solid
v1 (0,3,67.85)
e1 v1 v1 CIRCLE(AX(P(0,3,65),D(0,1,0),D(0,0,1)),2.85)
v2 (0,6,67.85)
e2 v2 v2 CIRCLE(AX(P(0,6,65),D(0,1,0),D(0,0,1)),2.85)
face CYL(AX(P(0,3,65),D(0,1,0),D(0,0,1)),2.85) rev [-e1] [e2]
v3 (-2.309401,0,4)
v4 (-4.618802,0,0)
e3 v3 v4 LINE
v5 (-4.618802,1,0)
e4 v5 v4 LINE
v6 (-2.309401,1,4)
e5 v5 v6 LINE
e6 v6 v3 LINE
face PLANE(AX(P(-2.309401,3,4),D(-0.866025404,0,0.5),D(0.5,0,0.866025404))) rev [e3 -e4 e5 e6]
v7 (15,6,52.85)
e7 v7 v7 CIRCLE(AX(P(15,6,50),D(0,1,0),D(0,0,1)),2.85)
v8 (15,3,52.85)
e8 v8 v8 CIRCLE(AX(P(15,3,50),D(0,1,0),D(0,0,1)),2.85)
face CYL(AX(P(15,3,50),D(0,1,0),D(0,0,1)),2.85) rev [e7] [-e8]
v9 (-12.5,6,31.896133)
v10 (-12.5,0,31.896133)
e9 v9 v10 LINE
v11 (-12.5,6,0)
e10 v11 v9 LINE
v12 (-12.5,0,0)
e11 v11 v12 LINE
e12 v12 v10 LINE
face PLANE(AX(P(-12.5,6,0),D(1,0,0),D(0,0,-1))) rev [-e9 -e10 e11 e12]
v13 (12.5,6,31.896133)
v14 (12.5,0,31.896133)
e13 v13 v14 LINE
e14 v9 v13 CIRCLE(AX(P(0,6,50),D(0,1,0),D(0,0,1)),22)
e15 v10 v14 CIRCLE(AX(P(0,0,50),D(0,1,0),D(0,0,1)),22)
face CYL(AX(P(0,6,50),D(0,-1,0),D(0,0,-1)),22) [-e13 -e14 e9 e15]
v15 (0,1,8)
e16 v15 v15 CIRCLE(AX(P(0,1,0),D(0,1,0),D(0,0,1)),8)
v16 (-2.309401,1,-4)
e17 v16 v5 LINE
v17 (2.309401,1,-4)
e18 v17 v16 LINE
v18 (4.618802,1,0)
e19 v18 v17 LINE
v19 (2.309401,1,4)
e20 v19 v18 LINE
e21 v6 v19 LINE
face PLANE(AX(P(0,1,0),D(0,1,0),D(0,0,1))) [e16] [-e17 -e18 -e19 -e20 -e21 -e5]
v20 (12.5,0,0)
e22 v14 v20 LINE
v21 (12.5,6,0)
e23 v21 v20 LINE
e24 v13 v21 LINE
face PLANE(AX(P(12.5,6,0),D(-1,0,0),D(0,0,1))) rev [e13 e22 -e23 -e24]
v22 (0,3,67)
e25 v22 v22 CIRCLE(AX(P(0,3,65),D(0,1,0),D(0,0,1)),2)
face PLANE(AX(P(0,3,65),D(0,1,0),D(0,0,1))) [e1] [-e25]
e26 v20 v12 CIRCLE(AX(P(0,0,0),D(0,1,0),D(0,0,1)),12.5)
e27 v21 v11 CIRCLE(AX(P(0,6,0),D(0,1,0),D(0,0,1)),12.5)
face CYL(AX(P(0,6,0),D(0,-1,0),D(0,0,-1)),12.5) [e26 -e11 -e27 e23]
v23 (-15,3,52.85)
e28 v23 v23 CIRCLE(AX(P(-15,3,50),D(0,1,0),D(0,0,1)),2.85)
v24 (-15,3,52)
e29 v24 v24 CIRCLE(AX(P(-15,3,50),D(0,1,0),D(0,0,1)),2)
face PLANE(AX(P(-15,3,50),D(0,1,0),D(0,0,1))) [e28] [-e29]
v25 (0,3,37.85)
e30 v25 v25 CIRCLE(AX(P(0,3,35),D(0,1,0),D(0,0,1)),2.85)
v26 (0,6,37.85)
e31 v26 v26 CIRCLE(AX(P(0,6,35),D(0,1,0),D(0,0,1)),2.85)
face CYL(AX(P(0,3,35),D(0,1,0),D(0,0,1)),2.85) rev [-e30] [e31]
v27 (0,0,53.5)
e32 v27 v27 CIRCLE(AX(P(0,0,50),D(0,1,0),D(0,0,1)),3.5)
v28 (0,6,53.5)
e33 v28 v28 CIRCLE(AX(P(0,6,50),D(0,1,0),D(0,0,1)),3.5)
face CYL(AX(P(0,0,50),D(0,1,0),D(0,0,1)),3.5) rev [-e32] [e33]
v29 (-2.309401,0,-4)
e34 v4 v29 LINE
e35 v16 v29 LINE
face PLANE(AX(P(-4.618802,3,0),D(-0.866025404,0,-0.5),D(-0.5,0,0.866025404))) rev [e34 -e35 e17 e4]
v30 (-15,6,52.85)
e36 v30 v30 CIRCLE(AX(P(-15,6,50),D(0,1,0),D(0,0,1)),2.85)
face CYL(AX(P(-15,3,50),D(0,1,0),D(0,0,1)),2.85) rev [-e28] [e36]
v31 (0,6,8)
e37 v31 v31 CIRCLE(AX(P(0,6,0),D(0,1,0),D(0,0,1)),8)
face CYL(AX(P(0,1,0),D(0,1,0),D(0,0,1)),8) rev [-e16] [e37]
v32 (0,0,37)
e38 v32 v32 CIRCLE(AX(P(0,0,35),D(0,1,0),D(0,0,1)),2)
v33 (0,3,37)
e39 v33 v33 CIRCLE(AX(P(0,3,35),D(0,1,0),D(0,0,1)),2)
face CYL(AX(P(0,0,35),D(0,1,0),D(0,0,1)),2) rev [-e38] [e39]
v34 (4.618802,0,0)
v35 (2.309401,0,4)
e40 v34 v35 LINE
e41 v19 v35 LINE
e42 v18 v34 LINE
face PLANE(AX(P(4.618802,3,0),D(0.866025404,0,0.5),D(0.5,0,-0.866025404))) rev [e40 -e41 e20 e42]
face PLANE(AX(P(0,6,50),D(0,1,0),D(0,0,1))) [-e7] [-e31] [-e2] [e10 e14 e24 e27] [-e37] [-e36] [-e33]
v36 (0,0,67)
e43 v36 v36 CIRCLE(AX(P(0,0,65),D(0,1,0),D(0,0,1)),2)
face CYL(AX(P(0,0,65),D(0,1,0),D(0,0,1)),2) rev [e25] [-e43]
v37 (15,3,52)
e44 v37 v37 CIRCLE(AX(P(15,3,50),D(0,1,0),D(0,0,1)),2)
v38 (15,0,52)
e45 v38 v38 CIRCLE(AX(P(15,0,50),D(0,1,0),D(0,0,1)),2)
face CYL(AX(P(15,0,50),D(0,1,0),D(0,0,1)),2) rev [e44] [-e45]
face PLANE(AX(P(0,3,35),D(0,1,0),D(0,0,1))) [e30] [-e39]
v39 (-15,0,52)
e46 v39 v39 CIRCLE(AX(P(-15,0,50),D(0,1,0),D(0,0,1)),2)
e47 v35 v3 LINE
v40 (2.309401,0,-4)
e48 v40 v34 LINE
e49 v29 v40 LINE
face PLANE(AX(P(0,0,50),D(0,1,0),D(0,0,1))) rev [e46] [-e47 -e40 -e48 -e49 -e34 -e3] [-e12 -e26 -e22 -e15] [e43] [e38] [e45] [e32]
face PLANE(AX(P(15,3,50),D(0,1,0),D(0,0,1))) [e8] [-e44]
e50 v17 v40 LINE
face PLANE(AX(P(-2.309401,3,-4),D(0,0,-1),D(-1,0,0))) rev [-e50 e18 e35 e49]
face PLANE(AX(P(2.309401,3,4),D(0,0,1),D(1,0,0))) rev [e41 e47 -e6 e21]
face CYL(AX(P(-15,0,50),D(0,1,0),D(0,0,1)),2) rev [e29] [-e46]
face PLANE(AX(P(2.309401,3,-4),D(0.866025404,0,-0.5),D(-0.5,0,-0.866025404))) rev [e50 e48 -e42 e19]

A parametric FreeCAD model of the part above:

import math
import FreeCAD as App
import Part
import Sketcher
Q = App.Units.Quantity


def add_polygon(sketch, points):
    """Adds a closed chain of lines whose ends are joined by coincident constraints."""
    first, n = sketch.GeometryCount, len(points)
    for a, b in zip(points, points[1:] + points[:1]):
        sketch.addGeometry(Part.LineSegment(App.Vector(*a, 0), App.Vector(*b, 0)), False)
    for i in range(n):
        sketch.addConstraint(Sketcher.Constraint("Coincident", first + i, 2, first + (i + 1) % n, 1))

doc = App.newDocument("Part")
body = doc.addObject("PartDesign::Body", "Body")

# Sketch on XZ plane
sketch1 = body.newObject("Sketcher::SketchObject", "Sketch")
sketch1.AttachmentSupport = (doc.getObject("XZ_Plane"), [""])
sketch1.MapMode = "FlatFace"
sketch1.addGeometry(Part.LineSegment(App.Vector(-12, 0, 0), App.Vector(-12, 32, 0)), False)
sketch1.addGeometry(Part.ArcOfCircle(Part.Circle(App.Vector(0, 50, 0), App.Vector(0, 0, 1), 22), math.radians(-55), math.radians(235)), False)
sketch1.addGeometry(Part.LineSegment(App.Vector(12, 32, 0), App.Vector(12, 0, 0)), False)
sketch1.addGeometry(Part.ArcOfCircle(Part.Circle(App.Vector(0, 0, 0), App.Vector(0, 0, 1), 12), math.radians(180), math.radians(360)), False)
sketch1.addConstraint(Sketcher.Constraint("Coincident", 0, 2, 1, 2))
sketch1.addConstraint(Sketcher.Constraint("Coincident", 1, 1, 2, 1))
sketch1.addConstraint(Sketcher.Constraint("Tangent", 2, 2, 3, 2))
sketch1.addConstraint(Sketcher.Constraint("Tangent", 3, 1, 0, 1))
sketch1.addConstraint(Sketcher.Constraint("Vertical", 0))
sketch1.addConstraint(Sketcher.Constraint("Vertical", 2))
sketch1.addConstraint(Sketcher.Constraint("Coincident", 3, 3, -1, 1))
sketch1.addConstraint(Sketcher.Constraint("PointOnObject", 1, 3, -2))
sketch1.addConstraint(Sketcher.Constraint("Radius", 1, 22.0))
sketch1.addConstraint(Sketcher.Constraint("Radius", 3, 12.5))
sketch1.addConstraint(Sketcher.Constraint("DistanceY", -1, 1, 1, 3, 50.0))
pad1 = body.newObject("PartDesign::Pad", "Pad")
pad1.Profile = sketch1
pad1.Length = 6
pad1.Reversed = True

# Sketch on XZ plane
sketch2 = body.newObject("Sketcher::SketchObject", "Sketch001")
sketch2.AttachmentSupport = (doc.getObject("XZ_Plane"), [""])
sketch2.MapMode = "FlatFace"
sketch2.AttachmentOffset = App.Placement(App.Vector(0, 0, -6), App.Rotation())
sketch2.addGeometry(Part.Circle(App.Vector(0, 35, 0), App.Vector(0, 0, 1), 2.9), False)
sketch2.addGeometry(Part.Circle(App.Vector(15, 50, 0), App.Vector(0, 0, 1), 2.9), False)
sketch2.addGeometry(Part.Circle(App.Vector(0, 65, 0), App.Vector(0, 0, 1), 2.9), False)
sketch2.addGeometry(Part.Circle(App.Vector(-15, 50, 0), App.Vector(0, 0, 1), 2.9), False)
sketch2.addConstraint(Sketcher.Constraint("Equal", 0, 1))
sketch2.addConstraint(Sketcher.Constraint("Equal", 1, 2))
sketch2.addConstraint(Sketcher.Constraint("Equal", 2, 3))
sketch2.addConstraint(Sketcher.Constraint("Symmetric", 1, 3, 3, 3, -2))
sketch2.addConstraint(Sketcher.Constraint("PointOnObject", 0, 3, -2))
sketch2.addConstraint(Sketcher.Constraint("PointOnObject", 2, 3, -2))
sketch2.addConstraint(Sketcher.Constraint("Diameter", 0, 5.7))
sketch2.addConstraint(Sketcher.Constraint("DistanceY", -1, 1, 0, 3, 35.0))
sketch2.addConstraint(Sketcher.Constraint("DistanceX", -1, 1, 1, 3, 15.0))
sketch2.addConstraint(Sketcher.Constraint("DistanceY", -1, 1, 1, 3, 50.0))
sketch2.addConstraint(Sketcher.Constraint("DistanceY", -1, 1, 2, 3, 65.0))
pocket1 = body.newObject("PartDesign::Pocket", "Pocket")
pocket1.Profile = sketch2
pocket1.Length = 3
pocket1.Reversed = True

# Sketch on XZ plane
sketch3 = body.newObject("Sketcher::SketchObject", "Sketch002")
sketch3.AttachmentSupport = (doc.getObject("XZ_Plane"), [""])
sketch3.MapMode = "FlatFace"
sketch3.AttachmentOffset = App.Placement(App.Vector(0, 0, -6), App.Rotation())
sketch3.addGeometry(Part.Circle(App.Vector(0, 35, 0), App.Vector(0, 0, 1), 2), False)
sketch3.addGeometry(Part.Circle(App.Vector(15, 50, 0), App.Vector(0, 0, 1), 2), False)
sketch3.addGeometry(Part.Circle(App.Vector(0, 65, 0), App.Vector(0, 0, 1), 2), False)
sketch3.addGeometry(Part.Circle(App.Vector(-15, 50, 0), App.Vector(0, 0, 1), 2), False)
sketch3.addGeometry(Part.Circle(App.Vector(0, 50, 0), App.Vector(0, 0, 1), 3.5), False)
sketch3.addConstraint(Sketcher.Constraint("Equal", 0, 1))
sketch3.addConstraint(Sketcher.Constraint("Equal", 1, 2))
sketch3.addConstraint(Sketcher.Constraint("Equal", 2, 3))
sketch3.addConstraint(Sketcher.Constraint("Symmetric", 1, 3, 3, 3, -2))
sketch3.addConstraint(Sketcher.Constraint("PointOnObject", 0, 3, -2))
sketch3.addConstraint(Sketcher.Constraint("PointOnObject", 2, 3, -2))
sketch3.addConstraint(Sketcher.Constraint("PointOnObject", 4, 3, -2))
sketch3.addConstraint(Sketcher.Constraint("Horizontal", 3, 3, 4, 3))
sketch3.addConstraint(Sketcher.Constraint("Diameter", 0, 4.0))
sketch3.addConstraint(Sketcher.Constraint("Diameter", 4, 7.0))
sketch3.addConstraint(Sketcher.Constraint("DistanceY", -1, 1, 0, 3, 35.0))
sketch3.addConstraint(Sketcher.Constraint("DistanceX", -1, 1, 1, 3, 15.0))
sketch3.addConstraint(Sketcher.Constraint("DistanceY", -1, 1, 1, 3, 50.0))
sketch3.addConstraint(Sketcher.Constraint("DistanceY", -1, 1, 2, 3, 65.0))
pocket2 = body.newObject("PartDesign::Pocket", "Pocket001")
pocket2.Profile = sketch3
pocket2.Type = "ThroughAll"
pocket2.Reversed = True

# Sketch on XZ plane
sketch4 = body.newObject("Sketcher::SketchObject", "Sketch003")
sketch4.AttachmentSupport = (doc.getObject("XZ_Plane"), [""])
sketch4.MapMode = "FlatFace"
sketch4.AttachmentOffset = App.Placement(App.Vector(0, 0, -6), App.Rotation())
sketch4.addGeometry(Part.Circle(App.Vector(0, 0, 0), App.Vector(0, 0, 1), 8), False)
sketch4.addConstraint(Sketcher.Constraint("Coincident", 0, 3, -1, 1))
sketch4.addConstraint(Sketcher.Constraint("Diameter", 0, 16.0))
pocket3 = body.newObject("PartDesign::Pocket", "Pocket002")
pocket3.Profile = sketch4
pocket3.Length = 5
pocket3.Reversed = True

# Sketch on XZ plane
sketch5 = body.newObject("Sketcher::SketchObject", "Sketch004")
sketch5.AttachmentSupport = (doc.getObject("XZ_Plane"), [""])
sketch5.MapMode = "FlatFace"
sketch5.AttachmentOffset = App.Placement(App.Vector(0, 0, -6), App.Rotation())
sketch5.addGeometry(Part.Circle(App.Vector(0, 0, 0), App.Vector(0, 0, 1), 3.5), False)
sketch5.addConstraint(Sketcher.Constraint("Coincident", 0, 3, -1, 1))
sketch5.addConstraint(Sketcher.Constraint("Diameter", 0, 7.0))
pocket4 = body.newObject("PartDesign::Pocket", "Pocket003")
pocket4.Profile = sketch5
pocket4.Type = "ThroughAll"
pocket4.Reversed = True

# Sketch on XZ plane
sketch6 = body.newObject("Sketcher::SketchObject", "Sketch005")
sketch6.AttachmentSupport = (doc.getObject("XZ_Plane"), [""])
sketch6.MapMode = "FlatFace"
add_polygon(sketch6, [(4.6, 0), (2.3, 4), (-2.3, 4), (-4.6, 0), (-2.3, -4), (2.3, -4)])  # lines 0-5
sketch6.addConstraint(Sketcher.Constraint("Horizontal", 1))
sketch6.addConstraint(Sketcher.Constraint("Horizontal", 4))
sketch6.addConstraint(Sketcher.Constraint("Symmetric", 0, 2, 3, 2, -1, 1))
sketch6.addConstraint(Sketcher.Constraint("Symmetric", 2, 2, 5, 2, -1, 1))
sketch6.addConstraint(Sketcher.Constraint("PointOnObject", 2, 2, -1))
sketch6.addConstraint(Sketcher.Constraint("Parallel", 2, 5))
sketch6.addConstraint(Sketcher.Constraint("Vertical", 1, 2, 3, 2))
sketch6.addConstraint(Sketcher.Constraint("Angle", 0, Q("120 deg")))
sketch6.addConstraint(Sketcher.Constraint("DistanceY", -1, 1, 0, 2, 4.0))
sketch6.addConstraint(Sketcher.Constraint("DistanceX", -1, 1, 0, 2, 2.309401))
pocket5 = body.newObject("PartDesign::Pocket", "Pocket004")
pocket5.Profile = sketch6
pocket5.Length = 3

doc.recompute()
